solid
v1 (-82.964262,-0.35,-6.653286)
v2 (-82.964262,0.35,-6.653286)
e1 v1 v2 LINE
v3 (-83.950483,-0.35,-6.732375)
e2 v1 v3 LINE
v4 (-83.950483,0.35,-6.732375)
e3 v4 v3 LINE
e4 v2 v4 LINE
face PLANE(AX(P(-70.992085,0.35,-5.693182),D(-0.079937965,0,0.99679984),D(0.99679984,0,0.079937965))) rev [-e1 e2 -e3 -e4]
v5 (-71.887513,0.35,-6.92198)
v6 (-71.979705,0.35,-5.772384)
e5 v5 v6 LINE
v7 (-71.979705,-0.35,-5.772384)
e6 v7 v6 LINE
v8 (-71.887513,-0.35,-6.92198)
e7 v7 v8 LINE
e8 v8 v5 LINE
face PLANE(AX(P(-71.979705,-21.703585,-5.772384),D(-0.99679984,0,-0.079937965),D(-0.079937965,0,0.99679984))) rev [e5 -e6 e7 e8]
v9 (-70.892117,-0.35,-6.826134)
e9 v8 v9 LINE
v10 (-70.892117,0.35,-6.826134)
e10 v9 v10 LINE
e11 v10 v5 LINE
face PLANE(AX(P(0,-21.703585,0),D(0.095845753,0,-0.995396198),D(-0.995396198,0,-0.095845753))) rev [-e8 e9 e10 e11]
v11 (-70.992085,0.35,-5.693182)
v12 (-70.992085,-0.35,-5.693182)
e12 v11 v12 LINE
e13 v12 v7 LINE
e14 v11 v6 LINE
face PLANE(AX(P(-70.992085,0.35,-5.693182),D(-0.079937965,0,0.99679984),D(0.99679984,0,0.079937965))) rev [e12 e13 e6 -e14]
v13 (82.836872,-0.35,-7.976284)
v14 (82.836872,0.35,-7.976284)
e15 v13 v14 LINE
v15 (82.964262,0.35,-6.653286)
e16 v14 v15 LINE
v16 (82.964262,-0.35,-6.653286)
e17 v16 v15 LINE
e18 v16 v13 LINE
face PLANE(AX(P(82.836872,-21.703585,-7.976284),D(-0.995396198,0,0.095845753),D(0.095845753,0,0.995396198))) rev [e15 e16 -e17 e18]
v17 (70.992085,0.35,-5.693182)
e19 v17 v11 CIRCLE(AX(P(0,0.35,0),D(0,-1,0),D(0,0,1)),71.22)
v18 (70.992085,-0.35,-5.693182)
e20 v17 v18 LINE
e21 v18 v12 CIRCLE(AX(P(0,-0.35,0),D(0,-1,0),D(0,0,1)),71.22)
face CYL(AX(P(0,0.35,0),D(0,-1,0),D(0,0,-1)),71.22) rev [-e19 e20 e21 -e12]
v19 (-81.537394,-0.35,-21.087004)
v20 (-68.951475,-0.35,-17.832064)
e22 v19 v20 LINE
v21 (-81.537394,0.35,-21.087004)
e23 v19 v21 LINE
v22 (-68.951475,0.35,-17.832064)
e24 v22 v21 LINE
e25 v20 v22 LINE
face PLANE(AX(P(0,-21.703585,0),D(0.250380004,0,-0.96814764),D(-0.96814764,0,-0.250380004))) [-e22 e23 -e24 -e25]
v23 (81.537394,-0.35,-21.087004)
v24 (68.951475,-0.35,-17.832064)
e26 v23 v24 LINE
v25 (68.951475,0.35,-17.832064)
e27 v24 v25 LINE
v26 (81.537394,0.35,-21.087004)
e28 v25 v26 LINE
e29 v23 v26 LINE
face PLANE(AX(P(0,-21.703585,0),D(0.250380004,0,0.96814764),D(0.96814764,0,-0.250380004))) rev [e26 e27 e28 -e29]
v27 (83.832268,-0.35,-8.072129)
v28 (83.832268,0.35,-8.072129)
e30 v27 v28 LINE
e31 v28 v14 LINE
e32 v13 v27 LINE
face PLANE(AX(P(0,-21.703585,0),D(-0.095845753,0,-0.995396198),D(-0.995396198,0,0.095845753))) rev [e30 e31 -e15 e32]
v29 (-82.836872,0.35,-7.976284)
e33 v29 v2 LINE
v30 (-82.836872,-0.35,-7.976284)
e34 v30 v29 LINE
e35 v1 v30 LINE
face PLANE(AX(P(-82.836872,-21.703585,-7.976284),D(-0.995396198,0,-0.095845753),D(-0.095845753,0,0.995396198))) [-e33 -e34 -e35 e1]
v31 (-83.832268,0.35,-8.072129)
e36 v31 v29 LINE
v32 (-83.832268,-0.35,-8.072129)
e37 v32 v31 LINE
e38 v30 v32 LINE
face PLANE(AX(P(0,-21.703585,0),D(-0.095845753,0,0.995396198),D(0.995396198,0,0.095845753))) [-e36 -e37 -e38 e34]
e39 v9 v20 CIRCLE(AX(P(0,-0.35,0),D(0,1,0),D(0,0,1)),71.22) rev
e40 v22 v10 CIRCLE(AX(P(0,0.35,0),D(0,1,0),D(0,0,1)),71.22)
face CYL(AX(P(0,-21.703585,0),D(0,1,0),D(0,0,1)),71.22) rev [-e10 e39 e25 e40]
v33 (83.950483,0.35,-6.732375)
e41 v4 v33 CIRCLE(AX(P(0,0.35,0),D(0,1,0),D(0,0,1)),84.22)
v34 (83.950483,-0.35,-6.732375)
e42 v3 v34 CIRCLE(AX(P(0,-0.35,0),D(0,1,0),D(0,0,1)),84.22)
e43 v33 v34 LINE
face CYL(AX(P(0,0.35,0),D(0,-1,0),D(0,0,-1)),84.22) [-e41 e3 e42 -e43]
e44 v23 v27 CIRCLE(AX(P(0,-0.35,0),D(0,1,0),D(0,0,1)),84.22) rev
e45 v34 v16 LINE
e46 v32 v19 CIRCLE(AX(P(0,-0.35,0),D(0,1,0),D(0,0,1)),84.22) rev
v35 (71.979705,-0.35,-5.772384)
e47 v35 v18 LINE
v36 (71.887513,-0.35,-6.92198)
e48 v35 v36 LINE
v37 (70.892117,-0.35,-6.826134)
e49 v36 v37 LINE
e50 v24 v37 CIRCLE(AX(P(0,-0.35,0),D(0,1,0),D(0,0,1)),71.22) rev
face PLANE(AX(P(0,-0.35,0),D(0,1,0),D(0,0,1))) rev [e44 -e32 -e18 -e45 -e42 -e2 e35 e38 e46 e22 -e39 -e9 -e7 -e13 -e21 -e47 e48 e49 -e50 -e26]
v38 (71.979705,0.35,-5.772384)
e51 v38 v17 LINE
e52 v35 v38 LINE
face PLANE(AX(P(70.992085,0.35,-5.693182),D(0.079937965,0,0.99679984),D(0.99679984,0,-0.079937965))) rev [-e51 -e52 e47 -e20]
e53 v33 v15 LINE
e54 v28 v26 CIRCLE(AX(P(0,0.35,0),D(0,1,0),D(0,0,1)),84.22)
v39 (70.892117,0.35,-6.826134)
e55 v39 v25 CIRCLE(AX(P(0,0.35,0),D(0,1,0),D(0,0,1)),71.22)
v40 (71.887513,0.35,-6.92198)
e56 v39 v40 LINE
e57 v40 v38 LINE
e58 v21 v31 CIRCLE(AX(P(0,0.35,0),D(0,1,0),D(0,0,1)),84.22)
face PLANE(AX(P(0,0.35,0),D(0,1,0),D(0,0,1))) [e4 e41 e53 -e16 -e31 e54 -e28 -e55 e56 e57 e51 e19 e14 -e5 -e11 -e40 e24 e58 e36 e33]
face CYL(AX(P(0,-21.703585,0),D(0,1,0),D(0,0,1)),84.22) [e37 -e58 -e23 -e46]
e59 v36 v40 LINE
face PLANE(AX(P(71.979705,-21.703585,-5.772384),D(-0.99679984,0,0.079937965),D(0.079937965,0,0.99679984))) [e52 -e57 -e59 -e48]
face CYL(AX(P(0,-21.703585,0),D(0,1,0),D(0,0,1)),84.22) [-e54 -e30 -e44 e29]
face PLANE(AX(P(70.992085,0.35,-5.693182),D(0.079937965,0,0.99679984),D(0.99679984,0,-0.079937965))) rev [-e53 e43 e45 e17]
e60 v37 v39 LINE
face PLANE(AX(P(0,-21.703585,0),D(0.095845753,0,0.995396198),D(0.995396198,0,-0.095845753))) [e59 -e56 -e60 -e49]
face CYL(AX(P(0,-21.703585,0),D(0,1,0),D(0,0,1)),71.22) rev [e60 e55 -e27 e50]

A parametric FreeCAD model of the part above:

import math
import FreeCAD as App
import Part
import Sketcher
from FreeCAD import Vector
Q = App.Units.Quantity

doc = App.newDocument("Part")
params = doc.addObject("Spreadsheet::Sheet", "Params")
for row, (alias, value) in enumerate([
    ("sketch1_radius", "71.22 mm"),
    ("sketch1_radius2", "84.22 mm"),
    ("pad1_length", "0.7 mm"),
    ("sketch2_radius", "84.22 mm"),
    ("sketch2_radius2", "71.22 mm"),
    ("sketch2_length", "1 mm"),
    ("pad2_length", "0.7 mm"),
], start=1):
    params.set(f"A{row}", alias)
    params.set(f"B{row}", "=" + value)
    params.setAlias(f"B{row}", alias)

body = doc.addObject("PartDesign::Body", "Body")

sketch1 = doc.addObject("Sketcher::SketchObject", "Sketch")
body.addObject(sketch1)
sketch1.AttachmentSupport = (doc.XZ_Plane, [""])
sketch1.MapMode = "FlatFace"
sketch1.addGeometry(Part.LineSegment(Vector(84, -7, 0), Vector(71, -6, 0)), False)
sketch1.addGeometry(Part.ArcOfCircle(Part.Circle(Vector(0, 0, 0), Vector(0, 0, 1), 71), math.radians(-5), math.radians(185)), False)
sketch1.addGeometry(Part.LineSegment(Vector(-71, -6, 0), Vector(-84, -7, 0)), False)
sketch1.addGeometry(Part.ArcOfCircle(Part.Circle(Vector(0, 0, 0), Vector(0, 0, 1), 84), math.radians(-5), math.radians(185)), False)
sketch1.addConstraint(Sketcher.Constraint("Coincident", 0, 2, 1, 1))
sketch1.addConstraint(Sketcher.Constraint("Coincident", 1, 2, 2, 1))
sketch1.addConstraint(Sketcher.Constraint("Coincident", 2, 2, 3, 2))
sketch1.addConstraint(Sketcher.Constraint("Coincident", 3, 1, 0, 1))
sketch1.addConstraint(Sketcher.Constraint("Coincident", 1, 3, -1, 1))
sketch1.addConstraint(Sketcher.Constraint("Coincident", 3, 3, -1, 1))
sketch1.addConstraint(Sketcher.Constraint("Horizontal", 0, 2, 1, 2))
sketch1.addConstraint(Sketcher.Constraint("Horizontal", 2, 2, 3, 1))
sketch1.addConstraint(Sketcher.Constraint("Radius", 1, 71.22))
sketch1.addConstraint(Sketcher.Constraint("Radius", 3, 84.22))
sketch1.addConstraint(Sketcher.Constraint("DistanceY", 0, 2, -1, 1, 5.693182))
sketch1.addConstraint(Sketcher.Constraint("DistanceX", 2, 2, -1, 1, 83.950483))
sketch1.setExpression("Constraints[8]", "Params.sketch1_radius")
sketch1.setExpression("Constraints[9]", "Params.sketch1_radius2")
pad1 = doc.addObject("PartDesign::Pad", "Pad")
body.addObject(pad1)
pad1.Profile = sketch1
pad1.setExpression("Length", "Params.pad1_length")
pad1.Midplane = True

sketch2 = doc.addObject("Sketcher::SketchObject", "Sketch001")
body.addObject(sketch2)
sketch2.AttachmentSupport = (doc.XZ_Plane, [""])
sketch2.MapMode = "FlatFace"
sketch2.AttachmentOffset = App.Placement(Vector(0, 0, -0.35), App.Rotation())
sketch2.addGeometry(Part.LineSegment(Vector(72, -5.8, 0), Vector(83, -6.7, 0)), False)
sketch2.addGeometry(Part.LineSegment(Vector(83, -6.7, 0), Vector(82.8, -8, 0)), False)
sketch2.addGeometry(Part.LineSegment(Vector(82.8, -8, 0), Vector(83.8, -8.1, 0)), False)
sketch2.addGeometry(Part.ArcOfCircle(Part.Circle(Vector(0, 0, 0), Vector(0, 0, 1), 84.2), math.radians(-14.5), math.radians(-5.5)), False)
sketch2.addGeometry(Part.LineSegment(Vector(81.5, -21.1, 0), Vector(69, -17.8, 0)), False)
sketch2.addGeometry(Part.ArcOfCircle(Part.Circle(Vector(0, 0, 0), Vector(0, 0, 1), 71.2), math.radians(-14.5), math.radians(-5.5)), False)
sketch2.addGeometry(Part.LineSegment(Vector(70.9, -6.8, 0), Vector(71.9, -6.9, 0)), False)
sketch2.addGeometry(Part.LineSegment(Vector(71.9, -6.9, 0), Vector(72, -5.8, 0)), False)
sketch2.addGeometry(Part.LineSegment(Vector(-83, -6.7, 0), Vector(-72, -5.8, 0)), False)
sketch2.addGeometry(Part.LineSegment(Vector(-72, -5.8, 0), Vector(-71.9, -6.9, 0)), False)
sketch2.addGeometry(Part.LineSegment(Vector(-71.9, -6.9, 0), Vector(-70.9, -6.8, 0)), False)
sketch2.addGeometry(Part.ArcOfCircle(Part.Circle(Vector(0, 0, 0), Vector(0, 0, 1), 71.2), math.radians(-174.5), math.radians(-165.5)), False)
sketch2.addGeometry(Part.LineSegment(Vector(-69, -17.8, 0), Vector(-81.5, -21.1, 0)), False)
sketch2.addGeometry(Part.ArcOfCircle(Part.Circle(Vector(0, 0, 0), Vector(0, 0, 1), 84.2), math.radians(-174.5), math.radians(-165.5)), False)
sketch2.addGeometry(Part.LineSegment(Vector(-83.8, -8.1, 0), Vector(-82.8, -8, 0)), False)
sketch2.addGeometry(Part.LineSegment(Vector(-82.8, -8, 0), Vector(-83, -6.7, 0)), False)
sketch2.addConstraint(Sketcher.Constraint("Coincident", 0, 2, 1, 1))
sketch2.addConstraint(Sketcher.Constraint("Coincident", 1, 2, 2, 1))
sketch2.addConstraint(Sketcher.Constraint("Coincident", 2, 2, 3, 2))
sketch2.addConstraint(Sketcher.Constraint("Coincident", 3, 1, 4, 1))
sketch2.addConstraint(Sketcher.Constraint("Coincident", 4, 2, 5, 1))
sketch2.addConstraint(Sketcher.Constraint("Coincident", 5, 2, 6, 1))
sketch2.addConstraint(Sketcher.Constraint("Coincident", 6, 2, 7, 1))
sketch2.addConstraint(Sketcher.Constraint("Coincident", 7, 2, 0, 1))
sketch2.addConstraint(Sketcher.Constraint("Coincident", 8, 2, 9, 1))
sketch2.addConstraint(Sketcher.Constraint("Coincident", 9, 2, 10, 1))
sketch2.addConstraint(Sketcher.Constraint("Coincident", 10, 2, 11, 1))
sketch2.addConstraint(Sketcher.Constraint("Coincident", 11, 2, 12, 1))
sketch2.addConstraint(Sketcher.Constraint("Coincident", 12, 2, 13, 2))
sketch2.addConstraint(Sketcher.Constraint("Coincident", 13, 1, 14, 1))
sketch2.addConstraint(Sketcher.Constraint("Coincident", 14, 2, 15, 1))
sketch2.addConstraint(Sketcher.Constraint("Coincident", 15, 2, 8, 1))
sketch2.addConstraint(Sketcher.Constraint("Coincident", 3, 3, -1, 1))
sketch2.addConstraint(Sketcher.Constraint("Coincident", 5, 3, -1, 1))
sketch2.addConstraint(Sketcher.Constraint("Coincident", 11, 3, -1, 1))
sketch2.addConstraint(Sketcher.Constraint("Coincident", 13, 3, -1, 1))
sketch2.addConstraint(Sketcher.Constraint("Equal", 5, 11))
sketch2.addConstraint(Sketcher.Constraint("Equal", 3, 13))
sketch2.addConstraint(Sketcher.Constraint("Symmetric", 7, 2, 8, 2, -2))
sketch2.addConstraint(Sketcher.Constraint("Symmetric", 6, 2, 9, 2, -2))
sketch2.addConstraint(Sketcher.Constraint("Symmetric", 1, 2, 14, 2, -2))
sketch2.addConstraint(Sketcher.Constraint("Symmetric", 0, 2, 15, 2, -2))
sketch2.addConstraint(Sketcher.Constraint("Perpendicular", 1, 2))
sketch2.addConstraint(Sketcher.Constraint("Parallel", 2, 6))
sketch2.addConstraint(Sketcher.Constraint("Perpendicular", 0, 7))
sketch2.addConstraint(Sketcher.Constraint("Parallel", 10, 14))
sketch2.addConstraint(Sketcher.Constraint("Perpendicular", 14, 15))
sketch2.addConstraint(Sketcher.Constraint("Horizontal", 4, 2, 11, 2))
sketch2.addConstraint(Sketcher.Constraint("Horizontal", 3, 1, 12, 2))
sketch2.addConstraint(Sketcher.Constraint("Equal", 2, 6))
sketch2.addConstraint(Sketcher.Constraint("Radius", 3, 84.22))
sketch2.addConstraint(Sketcher.Constraint("Radius", 5, 71.22))
sketch2.addConstraint(Sketcher.Constraint("Distance", 2, 1.0))
sketch2.addConstraint(Sketcher.Constraint("Angle", 1, Q("-95.5 deg")))
sketch2.addConstraint(Sketcher.Constraint("Angle", 4, Q("165.5 deg")))
sketch2.addConstraint(Sketcher.Constraint("DistanceY", 1, 2, 7, 2, 2.2039))
sketch2.addConstraint(Sketcher.Constraint("DistanceX", -1, 1, 0, 2, 82.964262))
sketch2.addConstraint(Sketcher.Constraint("DistanceX", -1, 1, 1, 2, 82.836872))
sketch2.addConstraint(Sketcher.Constraint("DistanceY", 6, 2, -1, 1, 6.92198))
sketch2.addConstraint(Sketcher.Constraint("DistanceY", 3, 1, 1, 2, 13.11072))
sketch2.setExpression("Constraints[34]", "Params.sketch2_radius")
sketch2.setExpression("Constraints[35]", "Params.sketch2_radius2")
sketch2.setExpression("Constraints[36]", "Params.sketch2_length")
pad2 = doc.addObject("PartDesign::Pad", "Pad001")
body.addObject(pad2)
pad2.Profile = sketch2
pad2.setExpression("Length", "Params.pad2_length")

doc.recompute()
